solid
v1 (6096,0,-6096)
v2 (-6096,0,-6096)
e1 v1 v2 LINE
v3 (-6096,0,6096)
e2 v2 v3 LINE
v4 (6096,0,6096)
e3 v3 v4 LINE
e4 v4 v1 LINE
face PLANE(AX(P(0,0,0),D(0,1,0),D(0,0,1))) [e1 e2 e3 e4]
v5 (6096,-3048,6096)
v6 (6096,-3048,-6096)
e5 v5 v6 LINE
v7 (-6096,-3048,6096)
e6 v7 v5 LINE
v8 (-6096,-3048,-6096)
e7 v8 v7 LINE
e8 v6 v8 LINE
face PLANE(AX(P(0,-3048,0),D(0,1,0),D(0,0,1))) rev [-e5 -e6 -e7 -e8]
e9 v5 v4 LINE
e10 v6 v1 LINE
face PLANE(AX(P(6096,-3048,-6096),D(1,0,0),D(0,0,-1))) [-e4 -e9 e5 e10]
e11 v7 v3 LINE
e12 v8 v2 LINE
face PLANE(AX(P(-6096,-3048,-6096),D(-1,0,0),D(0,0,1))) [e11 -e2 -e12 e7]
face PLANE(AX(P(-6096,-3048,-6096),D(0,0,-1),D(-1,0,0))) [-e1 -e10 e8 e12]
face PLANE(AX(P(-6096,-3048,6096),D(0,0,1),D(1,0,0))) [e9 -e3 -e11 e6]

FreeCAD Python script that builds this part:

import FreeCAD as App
import Part
import Sketcher
from FreeCAD import Vector
Q = App.Units.Quantity

doc = App.newDocument("Part")
body = doc.addObject("PartDesign::Body", "Body")

sketch1 = body.newObject("Sketcher::SketchObject", "Sketch")
sketch1.AttachmentSupport = (doc.getObject("XZ_Plane"), [""])
sketch1.MapMode = "FlatFace"
sketch1.addGeometry([
    Part.LineSegment(Vector(-6096, -6096, 0), Vector(-6096, 6096, 0)),
    Part.LineSegment(Vector(-6096, 6096, 0), Vector(6096, 6096, 0)),
    Part.LineSegment(Vector(6096, 6096, 0), Vector(6096, -6096, 0)),
    Part.LineSegment(Vector(6096, -6096, 0), Vector(-6096, -6096, 0)),
], False)
sketch1.addConstraint([
    Sketcher.Constraint("Coincident", 0, 2, 1, 1),
    Sketcher.Constraint("Coincident", 1, 2, 2, 1),
    Sketcher.Constraint("Coincident", 2, 2, 3, 1),
    Sketcher.Constraint("Coincident", 3, 2, 0, 1),
    Sketcher.Constraint("Vertical", 0),
    Sketcher.Constraint("Horizontal", 1),
    Sketcher.Constraint("Vertical", 2),
    Sketcher.Constraint("Horizontal", 3),
    Sketcher.Constraint("Symmetric", 0, 2, 2, 2, -1, 1),
    Sketcher.Constraint("Equal", 3, 0),
    Sketcher.Constraint("DistanceX", 1, 1, 1, 2, Q("480 in")),
])
pad1 = body.newObject("PartDesign::Pad", "Pad")
pad1.Profile = sketch1
pad1.Length = Q("120 in")

doc.recompute()
